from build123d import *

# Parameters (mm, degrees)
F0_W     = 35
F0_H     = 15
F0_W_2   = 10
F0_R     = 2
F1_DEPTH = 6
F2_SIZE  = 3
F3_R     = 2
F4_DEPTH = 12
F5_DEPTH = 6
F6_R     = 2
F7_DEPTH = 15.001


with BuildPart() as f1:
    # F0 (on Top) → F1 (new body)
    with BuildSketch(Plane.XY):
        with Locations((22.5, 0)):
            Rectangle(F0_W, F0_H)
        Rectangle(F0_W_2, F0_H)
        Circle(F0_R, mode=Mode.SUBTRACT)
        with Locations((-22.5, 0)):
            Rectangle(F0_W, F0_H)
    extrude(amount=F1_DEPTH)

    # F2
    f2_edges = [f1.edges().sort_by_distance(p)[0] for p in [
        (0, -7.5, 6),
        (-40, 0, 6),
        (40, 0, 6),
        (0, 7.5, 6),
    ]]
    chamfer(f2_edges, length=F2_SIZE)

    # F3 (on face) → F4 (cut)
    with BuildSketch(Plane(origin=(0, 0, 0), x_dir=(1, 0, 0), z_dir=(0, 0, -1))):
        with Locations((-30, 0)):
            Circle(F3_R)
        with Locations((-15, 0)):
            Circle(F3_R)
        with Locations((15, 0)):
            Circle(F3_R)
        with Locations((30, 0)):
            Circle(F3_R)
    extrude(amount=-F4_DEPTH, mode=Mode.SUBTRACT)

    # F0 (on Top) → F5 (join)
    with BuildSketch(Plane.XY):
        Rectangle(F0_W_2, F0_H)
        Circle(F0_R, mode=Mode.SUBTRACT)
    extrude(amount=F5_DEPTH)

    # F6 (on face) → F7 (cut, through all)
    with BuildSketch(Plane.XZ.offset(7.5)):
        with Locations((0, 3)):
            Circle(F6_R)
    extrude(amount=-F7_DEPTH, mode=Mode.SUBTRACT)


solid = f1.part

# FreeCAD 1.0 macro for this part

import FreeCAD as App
import Part
import Sketcher
from FreeCAD import Vector
Q = App.Units.Quantity


def edges_at(feature, points):
    """Names of the edges that pass closest to the given points."""
    edges = feature.Shape.Edges
    near = lambda p: min(range(len(edges)), key=lambda i: edges[i].distToShape(Part.Vertex(*p))[0])
    return sorted({f"Edge{near(p) + 1}" for p in points})


def add_polygon(sketch, points):
    """Adds a closed chain of lines whose ends are joined by coincident constraints."""
    first, n = sketch.GeometryCount, len(points)
    for a, b in zip(points, points[1:] + points[:1]):
        sketch.addGeometry(Part.LineSegment(App.Vector(*a, 0), App.Vector(*b, 0)), False)
    for i in range(n):
        sketch.addConstraint(Sketcher.Constraint("Coincident", first + i, 2, first + (i + 1) % n, 1))

doc = App.newDocument("Part")
body = doc.addObject("PartDesign::Body", "Body")

sketch1 = body.newObject("Sketcher::SketchObject", "Sketch")
sketch1.AttachmentSupport = (doc.getObject("XY_Plane"), [""])
sketch1.MapMode = "FlatFace"
add_polygon(sketch1, [(40, -7.5), (40, 7.5), (-40, 7.5), (-40, -7.5)])
sketch1.addGeometry(Part.Circle(Vector(0, 0, 0), Vector(0, 0, 1), 2), False)
sketch1.addConstraint(Sketcher.Constraint("Vertical", 0))
sketch1.addConstraint(Sketcher.Constraint("Horizontal", 1))
sketch1.addConstraint(Sketcher.Constraint("Vertical", 2))
sketch1.addConstraint(Sketcher.Constraint("Horizontal", 3))
sketch1.addConstraint(Sketcher.Constraint("Coincident", 4, 3, -1, 1))
sketch1.addConstraint(Sketcher.Constraint("Symmetric", 0, 2, 2, 2, -1, 1))
sketch1.addConstraint(Sketcher.Constraint("Diameter", 4, Q("4 mm")))
sketch1.addConstraint(Sketcher.Constraint("DistanceX", 1, 2, 1, 1, Q("80 mm")))
sketch1.addConstraint(Sketcher.Constraint("DistanceY", 0, 1, 0, 2, Q("15 mm")))
pad1 = body.newObject("PartDesign::Pad", "Pad")
pad1.Profile = sketch1
pad1.Length = 6
doc.recompute()

chamfer = body.newObject("PartDesign::Chamfer", "Chamfer")
chamfer.Base = (pad1, edges_at(pad1, [
    (0, -7.5, 6),
    (-40, 0, 6),
    (40, 0, 6),
    (0, 7.5, 6),
]))
chamfer.Size = 3

sketch2 = body.newObject("Sketcher::SketchObject", "Sketch001")
sketch2.AttachmentSupport = (doc.getObject("XY_Plane"), [""])
sketch2.MapMode = "FlatFace"
sketch2.addGeometry(Part.Circle(Vector(-30, 0, 0), Vector(0, 0, 1), 2), False)
sketch2.addGeometry(Part.Circle(Vector(-15, 0, 0), Vector(0, 0, 1), 2), False)
sketch2.addGeometry(Part.Circle(Vector(15, 0, 0), Vector(0, 0, 1), 2), False)
sketch2.addGeometry(Part.Circle(Vector(30, 0, 0), Vector(0, 0, 1), 2), False)
sketch2.addConstraint(Sketcher.Constraint("Equal", 0, 1))
sketch2.addConstraint(Sketcher.Constraint("Equal", 1, 2))
sketch2.addConstraint(Sketcher.Constraint("Equal", 2, 3))
sketch2.addConstraint(Sketcher.Constraint("Symmetric", 1, 3, 2, 3, -1, 1))
sketch2.addConstraint(Sketcher.Constraint("Symmetric", 0, 3, 3, 3, -1, 1))
sketch2.addConstraint(Sketcher.Constraint("PointOnObject", 0, 3, -1))
sketch2.addConstraint(Sketcher.Constraint("PointOnObject", 1, 3, -1))
sketch2.addConstraint(Sketcher.Constraint("Diameter", 0, Q("4 mm")))
sketch2.addConstraint(Sketcher.Constraint("DistanceX", 0, 3, -1, 1, Q("30 mm")))
sketch2.addConstraint(Sketcher.Constraint("DistanceX", 1, 3, -1, 1, Q("15 mm")))
pocket1 = body.newObject("PartDesign::Pocket", "Pocket")
pocket1.Profile = sketch2
pocket1.Length = 12
pocket1.Reversed = True

sketch3 = body.newObject("Sketcher::SketchObject", "Sketch002")
sketch3.AttachmentSupport = (doc.getObject("XY_Plane"), [""])
sketch3.MapMode = "FlatFace"
add_polygon(sketch3, [(-5, 7.5), (-5, -7.5), (5, -7.5), (5, 7.5)])
sketch3.addGeometry(Part.Circle(Vector(0, 0, 0), Vector(0, 0, 1), 2), False)
sketch3.addConstraint(Sketcher.Constraint("Vertical", 0))
sketch3.addConstraint(Sketcher.Constraint("Horizontal", 1))
sketch3.addConstraint(Sketcher.Constraint("Vertical", 2))
sketch3.addConstraint(Sketcher.Constraint("Horizontal", 3))
sketch3.addConstraint(Sketcher.Constraint("Coincident", 4, 3, -1, 1))
sketch3.addConstraint(Sketcher.Constraint("Symmetric", 0, 2, 2, 2, -1, 1))
sketch3.addConstraint(Sketcher.Constraint("Diameter", 4, Q("4 mm")))
sketch3.addConstraint(Sketcher.Constraint("DistanceX", 1, 1, 1, 2, Q("10 mm")))
sketch3.addConstraint(Sketcher.Constraint("DistanceY", 0, 2, 0, 1, Q("15 mm")))
pad2 = body.newObject("PartDesign::Pad", "Pad001")
pad2.Profile = sketch3
pad2.Length = 6

sketch4 = body.newObject("Sketcher::SketchObject", "Sketch003")
sketch4.AttachmentSupport = (doc.getObject("XZ_Plane"), [""])
sketch4.MapMode = "FlatFace"
sketch4.AttachmentOffset = App.Placement(Vector(0, 0, 7.5), App.Rotation())
sketch4.addGeometry(Part.Circle(Vector(0, 3, 0), Vector(0, 0, 1), 2), False)
sketch4.addConstraint(Sketcher.Constraint("PointOnObject", 0, 3, -2))
sketch4.addConstraint(Sketcher.Constraint("Diameter", 0, Q("4 mm")))
sketch4.addConstraint(Sketcher.Constraint("DistanceY", -1, 1, 0, 3, Q("3 mm")))
pocket2 = body.newObject("PartDesign::Pocket", "Pocket001")
pocket2.Profile = sketch4
pocket2.Type = "ThroughAll"

doc.recompute()
